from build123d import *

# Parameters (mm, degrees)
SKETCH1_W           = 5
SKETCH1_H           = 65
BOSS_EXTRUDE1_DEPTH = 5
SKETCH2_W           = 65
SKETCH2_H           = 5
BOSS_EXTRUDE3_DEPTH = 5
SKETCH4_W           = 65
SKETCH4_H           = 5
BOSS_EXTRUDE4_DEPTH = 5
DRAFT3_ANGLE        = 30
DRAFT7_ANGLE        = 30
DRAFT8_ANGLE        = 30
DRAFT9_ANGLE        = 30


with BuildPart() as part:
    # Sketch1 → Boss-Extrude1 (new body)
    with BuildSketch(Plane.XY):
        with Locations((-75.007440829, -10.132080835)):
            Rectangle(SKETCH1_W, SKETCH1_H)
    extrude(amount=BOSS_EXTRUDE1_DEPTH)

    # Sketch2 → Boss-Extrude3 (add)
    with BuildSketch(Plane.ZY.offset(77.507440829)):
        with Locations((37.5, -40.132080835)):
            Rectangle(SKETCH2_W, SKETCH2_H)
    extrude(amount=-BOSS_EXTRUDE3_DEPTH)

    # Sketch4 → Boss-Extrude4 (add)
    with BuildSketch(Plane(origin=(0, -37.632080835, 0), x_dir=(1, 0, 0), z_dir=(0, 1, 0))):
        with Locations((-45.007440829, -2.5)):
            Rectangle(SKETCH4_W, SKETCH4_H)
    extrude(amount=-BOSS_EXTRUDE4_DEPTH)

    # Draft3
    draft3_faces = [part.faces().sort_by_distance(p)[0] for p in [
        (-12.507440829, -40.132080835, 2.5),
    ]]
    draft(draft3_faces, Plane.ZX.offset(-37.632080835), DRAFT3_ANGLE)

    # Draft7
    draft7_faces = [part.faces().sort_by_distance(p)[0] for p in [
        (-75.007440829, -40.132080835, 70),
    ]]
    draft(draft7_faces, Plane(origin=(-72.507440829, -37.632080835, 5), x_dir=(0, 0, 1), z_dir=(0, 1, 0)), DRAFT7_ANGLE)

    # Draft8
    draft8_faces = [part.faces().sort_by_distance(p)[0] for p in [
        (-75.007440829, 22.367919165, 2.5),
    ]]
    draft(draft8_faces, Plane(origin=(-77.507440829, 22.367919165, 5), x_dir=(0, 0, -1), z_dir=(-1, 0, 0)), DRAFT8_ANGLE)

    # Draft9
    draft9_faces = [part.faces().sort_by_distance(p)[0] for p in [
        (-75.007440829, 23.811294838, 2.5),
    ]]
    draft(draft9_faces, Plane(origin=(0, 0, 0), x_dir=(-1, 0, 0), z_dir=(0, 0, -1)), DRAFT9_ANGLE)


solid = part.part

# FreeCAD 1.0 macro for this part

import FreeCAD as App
import Part
import Sketcher

V = App.Vector
Q = App.Units.Quantity


def faces_at(feature, points):
    """Names of the faces that lie closest to the given points."""
    faces = feature.Shape.Faces
    near = lambda p: min(range(len(faces)), key=lambda i: faces[i].distToShape(Part.Vertex(*p))[0])
    return sorted({f"Face{near(p) + 1}" for p in points})

doc = App.newDocument("Part")
body = doc.addObject("PartDesign::Body", "Body")

# Sketch on XY plane
sketch1 = body.newObject("Sketcher::SketchObject", "Sketch")
sketch1.AttachmentSupport = (doc.getObject("XY_Plane"), [""])
sketch1.MapMode = "FlatFace"
sketch1.addGeometry(Part.LineSegment(V(-78, 22, 0), V(-78, -43, 0)), False)
sketch1.addGeometry(Part.LineSegment(V(-78, -43, 0), V(-73, -43, 0)), False)
sketch1.addGeometry(Part.LineSegment(V(-73, -43, 0), V(-73, 22, 0)), False)
sketch1.addGeometry(Part.LineSegment(V(-73, 22, 0), V(-78, 22, 0)), False)
sketch1.addConstraint(Sketcher.Constraint("Coincident", 0, 2, 1, 1))
sketch1.addConstraint(Sketcher.Constraint("Coincident", 1, 2, 2, 1))
sketch1.addConstraint(Sketcher.Constraint("Coincident", 2, 2, 3, 1))
sketch1.addConstraint(Sketcher.Constraint("Coincident", 3, 2, 0, 1))
sketch1.addConstraint(Sketcher.Constraint("Vertical", 0))
sketch1.addConstraint(Sketcher.Constraint("Horizontal", 1))
sketch1.addConstraint(Sketcher.Constraint("Vertical", 2))
sketch1.addConstraint(Sketcher.Constraint("Horizontal", 3))
sketch1.addConstraint(Sketcher.Constraint("DistanceX", 1, 1, 1, 2, Q("5 mm")))
sketch1.addConstraint(Sketcher.Constraint("DistanceY", 0, 2, 0, 1, Q("65 mm")))
sketch1.addConstraint(Sketcher.Constraint("DistanceX", 0, 2, -1, 1, Q("77.507441 mm")))
sketch1.addConstraint(Sketcher.Constraint("DistanceY", 0, 2, -1, 1, Q("42.632081 mm")))
pad1 = body.newObject("PartDesign::Pad", "Pad")
pad1.Profile = sketch1
pad1.Length = 5

# Sketch on YZ plane
sketch2 = body.newObject("Sketcher::SketchObject", "Sketch001")
sketch2.AttachmentSupport = (doc.getObject("YZ_Plane"), [""])
sketch2.MapMode = "FlatFace"
sketch2.AttachmentOffset = App.Placement(V(0, 0, -77.507441), App.Rotation())
sketch2.addGeometry(Part.LineSegment(V(-38, 5, 0), V(-43, 5, 0)), False)
sketch2.addGeometry(Part.LineSegment(V(-43, 5, 0), V(-43, 70, 0)), False)
sketch2.addGeometry(Part.LineSegment(V(-43, 70, 0), V(-38, 70, 0)), False)
sketch2.addGeometry(Part.LineSegment(V(-38, 70, 0), V(-38, 5, 0)), False)
sketch2.addConstraint(Sketcher.Constraint("Coincident", 0, 2, 1, 1))
sketch2.addConstraint(Sketcher.Constraint("Coincident", 1, 2, 2, 1))
sketch2.addConstraint(Sketcher.Constraint("Coincident", 2, 2, 3, 1))
sketch2.addConstraint(Sketcher.Constraint("Coincident", 3, 2, 0, 1))
sketch2.addConstraint(Sketcher.Constraint("Horizontal", 0))
sketch2.addConstraint(Sketcher.Constraint("Vertical", 1))
sketch2.addConstraint(Sketcher.Constraint("Horizontal", 2))
sketch2.addConstraint(Sketcher.Constraint("Vertical", 3))
sketch2.addConstraint(Sketcher.Constraint("DistanceX", 0, 2, 0, 1, Q("5 mm")))
sketch2.addConstraint(Sketcher.Constraint("DistanceY", 1, 1, 1, 2, Q("65 mm")))
sketch2.addConstraint(Sketcher.Constraint("DistanceY", -1, 1, 0, 2, Q("5 mm")))
sketch2.addConstraint(Sketcher.Constraint("DistanceX", 0, 2, -1, 1, Q("42.632081 mm")))
pad2 = body.newObject("PartDesign::Pad", "Pad001")
pad2.Profile = sketch2
pad2.Length = 5

# Sketch on XZ plane
sketch3 = body.newObject("Sketcher::SketchObject", "Sketch002")
sketch3.AttachmentSupport = (doc.getObject("XZ_Plane"), [""])
sketch3.MapMode = "FlatFace"
sketch3.AttachmentOffset = App.Placement(V(0, 0, 37.632081), App.Rotation())
sketch3.addGeometry(Part.LineSegment(V(-78, 0, 0), V(-78, 5, 0)), False)
sketch3.addGeometry(Part.LineSegment(V(-78, 5, 0), V(-13, 5, 0)), False)
sketch3.addGeometry(Part.LineSegment(V(-13, 5, 0), V(-13, 0, 0)), False)
sketch3.addGeometry(Part.LineSegment(V(-13, 0, 0), V(-78, 0, 0)), False)
sketch3.addConstraint(Sketcher.Constraint("Coincident", 0, 2, 1, 1))
sketch3.addConstraint(Sketcher.Constraint("Coincident", 1, 2, 2, 1))
sketch3.addConstraint(Sketcher.Constraint("Coincident", 2, 2, 3, 1))
sketch3.addConstraint(Sketcher.Constraint("Coincident", 3, 2, 0, 1))
sketch3.addConstraint(Sketcher.Constraint("Vertical", 0))
sketch3.addConstraint(Sketcher.Constraint("Horizontal", 1))
sketch3.addConstraint(Sketcher.Constraint("Vertical", 2))
sketch3.addConstraint(Sketcher.Constraint("Horizontal", 3))
sketch3.addConstraint(Sketcher.Constraint("PointOnObject", 2, 2, -1))
sketch3.addConstraint(Sketcher.Constraint("DistanceX", 1, 1, 1, 2, Q("65 mm")))
sketch3.addConstraint(Sketcher.Constraint("DistanceY", 0, 1, 0, 2, Q("5 mm")))
sketch3.addConstraint(Sketcher.Constraint("DistanceX", 0, 2, -1, 1, Q("77.507441 mm")))
pad3 = body.newObject("PartDesign::Pad", "Pad002")
pad3.Profile = sketch3
pad3.Length = 5
doc.recompute()

datumplane = body.newObject("PartDesign::Plane", "DatumPlane")
datumplane.AttachmentSupport = (doc.getObject("XZ_Plane"), [""])
datumplane.MapMode = "FlatFace"
datumplane.AttachmentOffset = App.Placement(V(0, 0, 37.632081), App.Rotation())
draft = body.newObject("PartDesign::Draft", "Draft")
draft.Base = (pad3, faces_at(pad3, [(-12.507, -40.132, 2.5)]))
draft.NeutralPlane = (datumplane, [""])
draft.Angle = 30
draft.Reversed = True
doc.recompute()

datumplane2 = body.newObject("PartDesign::Plane", "DatumPlane001")
datumplane2.AttachmentSupport = (doc.getObject("XZ_Plane"), [""])
datumplane2.MapMode = "FlatFace"
datumplane2.AttachmentOffset = App.Placement(V(0, 0, 37.632081), App.Rotation())
draft2 = body.newObject("PartDesign::Draft", "Draft001")
draft2.Base = (draft, faces_at(draft, [(-75.007, -40.132, 70)]))
draft2.NeutralPlane = (datumplane2, [""])
draft2.Angle = 30
draft2.Reversed = True
doc.recompute()

datumplane3 = body.newObject("PartDesign::Plane", "DatumPlane002")
datumplane3.AttachmentSupport = (doc.getObject("YZ_Plane"), [""])
datumplane3.MapMode = "FlatFace"
datumplane3.AttachmentOffset = App.Placement(V(0, 0, -77.507441), App.Rotation())
draft3 = body.newObject("PartDesign::Draft", "Draft002")
draft3.Base = (draft2, faces_at(draft2, [(-75.007, 22.368, 2.5)]))
draft3.NeutralPlane = (datumplane3, [""])
draft3.Angle = 30
draft3.Reversed = True
doc.recompute()

draft4 = body.newObject("PartDesign::Draft", "Draft003")
draft4.Base = (draft3, faces_at(draft3, [(-75.007, 23.811, 2.5)]))
draft4.NeutralPlane = (doc.getObject("XY_Plane"), [""])
draft4.Angle = 30
draft4.Reversed = True

doc.recompute()
